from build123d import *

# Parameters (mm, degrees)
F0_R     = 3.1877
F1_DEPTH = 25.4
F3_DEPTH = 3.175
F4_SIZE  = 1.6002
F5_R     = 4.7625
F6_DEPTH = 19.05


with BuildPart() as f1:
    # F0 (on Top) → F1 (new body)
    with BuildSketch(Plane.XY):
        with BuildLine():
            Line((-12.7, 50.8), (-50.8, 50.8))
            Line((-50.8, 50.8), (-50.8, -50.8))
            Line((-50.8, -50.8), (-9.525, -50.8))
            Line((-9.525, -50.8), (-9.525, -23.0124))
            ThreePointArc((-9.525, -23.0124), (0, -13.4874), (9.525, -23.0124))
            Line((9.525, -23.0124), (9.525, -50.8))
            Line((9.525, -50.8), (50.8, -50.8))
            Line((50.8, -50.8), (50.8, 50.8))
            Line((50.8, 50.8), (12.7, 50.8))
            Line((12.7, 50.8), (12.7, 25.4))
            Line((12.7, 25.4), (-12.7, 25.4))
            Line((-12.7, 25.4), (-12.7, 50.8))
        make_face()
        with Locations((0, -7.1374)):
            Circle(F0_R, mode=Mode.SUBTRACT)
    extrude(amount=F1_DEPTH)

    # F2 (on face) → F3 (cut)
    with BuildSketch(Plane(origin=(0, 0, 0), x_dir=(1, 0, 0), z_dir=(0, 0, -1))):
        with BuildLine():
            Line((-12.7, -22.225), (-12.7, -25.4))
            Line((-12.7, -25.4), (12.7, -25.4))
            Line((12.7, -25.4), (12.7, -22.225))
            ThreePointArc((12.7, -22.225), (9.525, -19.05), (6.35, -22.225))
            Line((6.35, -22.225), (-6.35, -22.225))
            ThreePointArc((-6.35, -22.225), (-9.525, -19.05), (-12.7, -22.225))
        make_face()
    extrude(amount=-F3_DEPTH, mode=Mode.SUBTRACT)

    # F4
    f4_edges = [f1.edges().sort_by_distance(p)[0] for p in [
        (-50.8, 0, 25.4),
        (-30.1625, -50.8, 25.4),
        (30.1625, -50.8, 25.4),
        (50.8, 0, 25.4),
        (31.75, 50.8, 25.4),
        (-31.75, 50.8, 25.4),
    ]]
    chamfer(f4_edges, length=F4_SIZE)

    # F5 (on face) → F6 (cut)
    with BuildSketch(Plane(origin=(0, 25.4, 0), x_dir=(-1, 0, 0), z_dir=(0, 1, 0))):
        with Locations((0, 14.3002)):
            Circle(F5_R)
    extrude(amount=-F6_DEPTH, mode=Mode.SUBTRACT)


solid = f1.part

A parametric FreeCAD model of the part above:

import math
import FreeCAD as App
import Part
import Sketcher
from FreeCAD import Vector
Q = App.Units.Quantity


def edges_at(feature, points):
    """Names of the edges that pass closest to the given points."""
    edges = feature.Shape.Edges
    near = lambda p: min(range(len(edges)), key=lambda i: edges[i].distToShape(Part.Vertex(*p))[0])
    return sorted({f"Edge{near(p) + 1}" for p in points})

doc = App.newDocument("Part")
body = doc.addObject("PartDesign::Body", "Body")

# Sketch on XY plane
sketch1 = body.newObject("Sketcher::SketchObject", "Sketch")
sketch1.AttachmentSupport = (doc.getObject("XY_Plane"), [""])
sketch1.MapMode = "FlatFace"
sketch1.addGeometry(Part.LineSegment(Vector(-12.7, 50.8, 0), Vector(-50.8, 50.8, 0)), False)
sketch1.addGeometry(Part.LineSegment(Vector(-50.8, 50.8, 0), Vector(-50.8, -50.8, 0)), False)
sketch1.addGeometry(Part.LineSegment(Vector(-50.8, -50.8, 0), Vector(-9.5, -50.8, 0)), False)
sketch1.addGeometry(Part.LineSegment(Vector(-9.5, -50.8, 0), Vector(-9.5, -23, 0)), False)
sketch1.addGeometry(Part.ArcOfCircle(Part.Circle(Vector(0, -23, 0), Vector(0, 0, 1), 9.5), math.radians(0), math.radians(180)), False)
sketch1.addGeometry(Part.LineSegment(Vector(9.5, -23, 0), Vector(9.5, -50.8, 0)), False)
sketch1.addGeometry(Part.LineSegment(Vector(9.5, -50.8, 0), Vector(50.8, -50.8, 0)), False)
sketch1.addGeometry(Part.LineSegment(Vector(50.8, -50.8, 0), Vector(50.8, 50.8, 0)), False)
sketch1.addGeometry(Part.LineSegment(Vector(50.8, 50.8, 0), Vector(12.7, 50.8, 0)), False)
sketch1.addGeometry(Part.LineSegment(Vector(12.7, 50.8, 0), Vector(12.7, 25.4, 0)), False)
sketch1.addGeometry(Part.LineSegment(Vector(12.7, 25.4, 0), Vector(-12.7, 25.4, 0)), False)
sketch1.addGeometry(Part.LineSegment(Vector(-12.7, 25.4, 0), Vector(-12.7, 50.8, 0)), False)
sketch1.addGeometry(Part.Circle(Vector(0, -7.1, 0), Vector(0, 0, 1), 3.2), False)
sketch1.addConstraint(Sketcher.Constraint("Coincident", 0, 2, 1, 1))
sketch1.addConstraint(Sketcher.Constraint("Coincident", 1, 2, 2, 1))
sketch1.addConstraint(Sketcher.Constraint("Coincident", 2, 2, 3, 1))
sketch1.addConstraint(Sketcher.Constraint("Tangent", 3, 2, 4, 2))
sketch1.addConstraint(Sketcher.Constraint("Tangent", 4, 1, 5, 1))
sketch1.addConstraint(Sketcher.Constraint("Coincident", 5, 2, 6, 1))
sketch1.addConstraint(Sketcher.Constraint("Coincident", 6, 2, 7, 1))
sketch1.addConstraint(Sketcher.Constraint("Coincident", 7, 2, 8, 1))
sketch1.addConstraint(Sketcher.Constraint("Coincident", 8, 2, 9, 1))
sketch1.addConstraint(Sketcher.Constraint("Coincident", 9, 2, 10, 1))
sketch1.addConstraint(Sketcher.Constraint("Coincident", 10, 2, 11, 1))
sketch1.addConstraint(Sketcher.Constraint("Coincident", 11, 2, 0, 1))
sketch1.addConstraint(Sketcher.Constraint("Horizontal", 0))
sketch1.addConstraint(Sketcher.Constraint("Vertical", 1))
sketch1.addConstraint(Sketcher.Constraint("Horizontal", 2))
sketch1.addConstraint(Sketcher.Constraint("Vertical", 3))
sketch1.addConstraint(Sketcher.Constraint("Vertical", 5))
sketch1.addConstraint(Sketcher.Constraint("Horizontal", 6))
sketch1.addConstraint(Sketcher.Constraint("Vertical", 7))
sketch1.addConstraint(Sketcher.Constraint("Horizontal", 8))
sketch1.addConstraint(Sketcher.Constraint("Vertical", 9))
sketch1.addConstraint(Sketcher.Constraint("Horizontal", 10))
sketch1.addConstraint(Sketcher.Constraint("Vertical", 11))
sketch1.addConstraint(Sketcher.Constraint("Symmetric", 0, 2, 6, 2, -1, 1))
sketch1.addConstraint(Sketcher.Constraint("Symmetric", 2, 2, 5, 2, -2))
sketch1.addConstraint(Sketcher.Constraint("Symmetric", 8, 2, 11, 2, -2))
sketch1.addConstraint(Sketcher.Constraint("PointOnObject", 12, 3, -2))
sketch1.addConstraint(Sketcher.Constraint("Equal", 10, 9))
sketch1.addConstraint(Sketcher.Constraint("DistanceX", 10, 2, 10, 1, Q("1 in")))
sketch1.addConstraint(Sketcher.Constraint("DistanceY", 1, 2, 1, 1, Q("4 in")))
sketch1.addConstraint(Sketcher.Constraint("Diameter", 12, Q("0.251 in")))
sketch1.addConstraint(Sketcher.Constraint("DistanceX", 0, 2, 0, 1, Q("1.5 in")))
sketch1.addConstraint(Sketcher.Constraint("Radius", 4, Q("0.375 in")))
sketch1.addConstraint(Sketcher.Constraint("DistanceY", 3, 1, 3, 2, Q("1.094 in")))
sketch1.addConstraint(Sketcher.Constraint("DistanceY", 12, 3, -1, 1, Q("0.281 in")))
pad1 = body.newObject("PartDesign::Pad", "Pad")
pad1.Profile = sketch1
pad1.Length = Q("1 in")

# Sketch on XY plane
sketch2 = body.newObject("Sketcher::SketchObject", "Sketch001")
sketch2.AttachmentSupport = (doc.getObject("XY_Plane"), [""])
sketch2.MapMode = "FlatFace"
sketch2.addGeometry(Part.LineSegment(Vector(-12.7, 22.2, 0), Vector(-12.7, 25.4, 0)), False)
sketch2.addGeometry(Part.LineSegment(Vector(-12.7, 25.4, 0), Vector(12.7, 25.4, 0)), False)
sketch2.addGeometry(Part.LineSegment(Vector(12.7, 25.4, 0), Vector(12.7, 22.2, 0)), False)
sketch2.addGeometry(Part.ArcOfCircle(Part.Circle(Vector(9.5, 22.2, 0), Vector(0, 0, 1), 3.2), math.radians(180), math.radians(360)), False)
sketch2.addGeometry(Part.LineSegment(Vector(6.3, 22.2, 0), Vector(-6.3, 22.2, 0)), False)
sketch2.addGeometry(Part.ArcOfCircle(Part.Circle(Vector(-9.5, 22.2, 0), Vector(0, 0, 1), 3.2), math.radians(180), math.radians(360)), False)
sketch2.addConstraint(Sketcher.Constraint("Coincident", 0, 2, 1, 1))
sketch2.addConstraint(Sketcher.Constraint("Coincident", 1, 2, 2, 1))
sketch2.addConstraint(Sketcher.Constraint("Tangent", 2, 2, 3, 2))
sketch2.addConstraint(Sketcher.Constraint("Coincident", 3, 1, 4, 1))
sketch2.addConstraint(Sketcher.Constraint("Coincident", 4, 2, 5, 2))
sketch2.addConstraint(Sketcher.Constraint("Tangent", 5, 1, 0, 1))
sketch2.addConstraint(Sketcher.Constraint("Vertical", 0))
sketch2.addConstraint(Sketcher.Constraint("Horizontal", 1))
sketch2.addConstraint(Sketcher.Constraint("Vertical", 2))
sketch2.addConstraint(Sketcher.Constraint("Horizontal", 4))
sketch2.addConstraint(Sketcher.Constraint("Equal", 3, 5))
sketch2.addConstraint(Sketcher.Constraint("Symmetric", 3, 3, 5, 3, -2))
sketch2.addConstraint(Sketcher.Constraint("Horizontal", 2, 2, 3, 1))
sketch2.addConstraint(Sketcher.Constraint("DistanceX", 1, 1, 1, 2, Q("1 in")))
sketch2.addConstraint(Sketcher.Constraint("DistanceX", 4, 2, 4, 1, Q("0.5 in")))
sketch2.addConstraint(Sketcher.Constraint("DistanceY", -1, 1, 0, 2, Q("1 in")))
sketch2.addConstraint(Sketcher.Constraint("DistanceY", 0, 1, 0, 2, Q("0.125 in")))
pocket1 = body.newObject("PartDesign::Pocket", "Pocket")
pocket1.Profile = sketch2
pocket1.Length = Q("0.125 in")
pocket1.Reversed = True
doc.recompute()

chamfer = body.newObject("PartDesign::Chamfer", "Chamfer")
chamfer.Base = (pocket1, edges_at(pocket1, [
    (-50.8, 0, 25.4),
    (-30.163, -50.8, 25.4),
    (30.163, -50.8, 25.4),
    (50.8, 0, 25.4),
    (31.75, 50.8, 25.4),
    (-31.75, 50.8, 25.4),
]))
chamfer.Size = Q("0.063 in")

# Sketch on XZ plane
sketch3 = body.newObject("Sketcher::SketchObject", "Sketch002")
sketch3.AttachmentSupport = (doc.getObject("XZ_Plane"), [""])
sketch3.MapMode = "FlatFace"
sketch3.AttachmentOffset = App.Placement(Vector(0, 0, -1 * 25.4), App.Rotation())
sketch3.addGeometry(Part.Circle(Vector(0, 14.3, 0), Vector(0, 0, 1), 4.8), False)
sketch3.addConstraint(Sketcher.Constraint("PointOnObject", 0, 3, -2))
sketch3.addConstraint(Sketcher.Constraint("Diameter", 0, Q("0.375 in")))
sketch3.addConstraint(Sketcher.Constraint("DistanceY", -1, 1, 0, 3, Q("0.563 in")))
pocket2 = body.newObject("PartDesign::Pocket", "Pocket001")
pocket2.Profile = sketch3
pocket2.Length = Q("0.75 in")
pocket2.Reversed = True

doc.recompute()
